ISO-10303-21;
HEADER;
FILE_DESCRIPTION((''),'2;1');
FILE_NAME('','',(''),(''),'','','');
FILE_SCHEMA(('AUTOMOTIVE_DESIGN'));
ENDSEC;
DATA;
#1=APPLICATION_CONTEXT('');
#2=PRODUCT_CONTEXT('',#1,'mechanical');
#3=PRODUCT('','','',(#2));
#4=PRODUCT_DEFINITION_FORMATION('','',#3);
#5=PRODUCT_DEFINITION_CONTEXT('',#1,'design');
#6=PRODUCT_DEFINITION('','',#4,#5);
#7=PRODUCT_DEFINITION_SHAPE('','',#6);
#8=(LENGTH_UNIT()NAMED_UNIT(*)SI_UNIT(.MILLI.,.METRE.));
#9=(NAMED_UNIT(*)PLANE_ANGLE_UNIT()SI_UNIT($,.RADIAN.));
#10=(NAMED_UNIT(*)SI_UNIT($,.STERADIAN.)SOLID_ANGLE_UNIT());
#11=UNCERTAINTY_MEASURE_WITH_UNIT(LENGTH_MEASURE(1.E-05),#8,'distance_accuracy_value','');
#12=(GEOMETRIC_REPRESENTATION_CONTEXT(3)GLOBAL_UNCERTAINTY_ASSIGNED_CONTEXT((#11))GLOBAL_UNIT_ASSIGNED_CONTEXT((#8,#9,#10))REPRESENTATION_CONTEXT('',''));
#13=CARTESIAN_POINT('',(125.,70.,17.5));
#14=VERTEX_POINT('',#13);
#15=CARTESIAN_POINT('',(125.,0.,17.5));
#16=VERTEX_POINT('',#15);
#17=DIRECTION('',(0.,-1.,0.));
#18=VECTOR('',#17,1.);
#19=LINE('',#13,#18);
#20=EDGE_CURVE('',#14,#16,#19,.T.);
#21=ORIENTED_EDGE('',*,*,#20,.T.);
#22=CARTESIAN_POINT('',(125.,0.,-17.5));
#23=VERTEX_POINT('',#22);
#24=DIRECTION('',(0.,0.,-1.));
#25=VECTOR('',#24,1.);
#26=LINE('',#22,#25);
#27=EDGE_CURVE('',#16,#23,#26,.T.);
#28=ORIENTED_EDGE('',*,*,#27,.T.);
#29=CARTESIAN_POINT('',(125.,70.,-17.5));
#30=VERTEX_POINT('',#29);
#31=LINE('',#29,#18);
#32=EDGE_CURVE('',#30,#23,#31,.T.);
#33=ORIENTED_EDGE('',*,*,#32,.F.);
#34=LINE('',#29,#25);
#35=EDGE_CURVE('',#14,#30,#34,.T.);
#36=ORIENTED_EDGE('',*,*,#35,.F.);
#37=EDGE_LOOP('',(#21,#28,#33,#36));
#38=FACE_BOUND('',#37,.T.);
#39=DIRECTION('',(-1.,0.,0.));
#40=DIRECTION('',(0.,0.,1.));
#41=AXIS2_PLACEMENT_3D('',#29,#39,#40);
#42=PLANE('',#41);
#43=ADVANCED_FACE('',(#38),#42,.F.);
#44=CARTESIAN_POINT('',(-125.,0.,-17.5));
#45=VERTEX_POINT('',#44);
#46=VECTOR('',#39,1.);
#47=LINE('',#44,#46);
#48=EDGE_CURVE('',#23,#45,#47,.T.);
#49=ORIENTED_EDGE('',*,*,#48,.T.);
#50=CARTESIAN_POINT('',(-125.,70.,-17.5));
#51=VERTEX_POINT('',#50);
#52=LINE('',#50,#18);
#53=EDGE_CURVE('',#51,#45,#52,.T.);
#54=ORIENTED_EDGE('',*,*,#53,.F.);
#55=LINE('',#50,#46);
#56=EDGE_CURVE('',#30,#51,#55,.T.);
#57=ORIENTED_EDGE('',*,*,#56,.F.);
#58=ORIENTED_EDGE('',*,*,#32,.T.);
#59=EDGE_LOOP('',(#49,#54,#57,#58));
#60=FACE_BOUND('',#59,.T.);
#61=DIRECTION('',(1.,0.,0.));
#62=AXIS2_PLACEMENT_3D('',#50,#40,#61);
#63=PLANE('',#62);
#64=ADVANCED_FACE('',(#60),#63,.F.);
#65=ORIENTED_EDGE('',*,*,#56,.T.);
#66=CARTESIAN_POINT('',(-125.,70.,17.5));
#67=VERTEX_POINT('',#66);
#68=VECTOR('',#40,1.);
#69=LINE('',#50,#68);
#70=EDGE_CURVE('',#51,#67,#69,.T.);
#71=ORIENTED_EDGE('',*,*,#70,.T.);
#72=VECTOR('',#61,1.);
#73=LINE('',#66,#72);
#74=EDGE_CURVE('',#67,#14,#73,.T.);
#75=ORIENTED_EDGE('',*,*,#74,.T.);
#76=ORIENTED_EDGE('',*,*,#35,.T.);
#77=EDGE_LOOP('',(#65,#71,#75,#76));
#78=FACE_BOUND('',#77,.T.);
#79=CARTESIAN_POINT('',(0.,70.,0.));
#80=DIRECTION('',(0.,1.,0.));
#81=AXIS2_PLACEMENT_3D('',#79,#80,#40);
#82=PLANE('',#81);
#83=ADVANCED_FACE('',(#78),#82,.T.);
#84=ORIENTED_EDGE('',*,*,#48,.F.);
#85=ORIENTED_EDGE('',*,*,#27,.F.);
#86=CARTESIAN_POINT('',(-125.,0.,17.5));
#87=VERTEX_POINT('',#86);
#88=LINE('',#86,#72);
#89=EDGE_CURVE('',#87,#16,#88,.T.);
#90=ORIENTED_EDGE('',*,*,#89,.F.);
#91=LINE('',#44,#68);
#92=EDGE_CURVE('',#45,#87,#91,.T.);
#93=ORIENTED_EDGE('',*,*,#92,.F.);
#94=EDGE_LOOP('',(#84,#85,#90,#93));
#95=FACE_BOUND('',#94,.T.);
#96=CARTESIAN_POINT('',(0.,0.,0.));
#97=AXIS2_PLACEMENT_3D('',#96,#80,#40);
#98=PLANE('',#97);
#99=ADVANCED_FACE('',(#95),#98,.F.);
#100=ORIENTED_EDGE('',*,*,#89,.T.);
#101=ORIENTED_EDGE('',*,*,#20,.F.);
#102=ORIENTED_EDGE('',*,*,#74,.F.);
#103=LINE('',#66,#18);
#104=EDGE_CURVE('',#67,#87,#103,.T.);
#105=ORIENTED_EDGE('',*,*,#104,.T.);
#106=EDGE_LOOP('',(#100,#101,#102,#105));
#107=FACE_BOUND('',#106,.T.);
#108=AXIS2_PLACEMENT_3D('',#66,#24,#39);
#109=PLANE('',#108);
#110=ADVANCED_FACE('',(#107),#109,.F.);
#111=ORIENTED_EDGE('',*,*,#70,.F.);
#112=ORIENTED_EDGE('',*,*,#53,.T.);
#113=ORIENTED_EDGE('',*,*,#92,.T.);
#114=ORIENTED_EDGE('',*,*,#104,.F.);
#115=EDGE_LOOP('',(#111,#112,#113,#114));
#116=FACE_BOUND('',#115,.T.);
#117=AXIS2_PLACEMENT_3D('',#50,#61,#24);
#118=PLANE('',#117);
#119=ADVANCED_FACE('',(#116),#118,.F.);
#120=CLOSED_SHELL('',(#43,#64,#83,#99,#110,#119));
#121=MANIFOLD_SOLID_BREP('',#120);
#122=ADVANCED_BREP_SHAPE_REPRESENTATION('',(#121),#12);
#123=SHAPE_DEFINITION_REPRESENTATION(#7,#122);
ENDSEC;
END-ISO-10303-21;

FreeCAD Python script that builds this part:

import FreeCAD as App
import Part
import Sketcher


def add_polygon(sketch, points):
    """Adds a closed chain of lines whose ends are joined by coincident constraints."""
    first, n = sketch.GeometryCount, len(points)
    for a, b in zip(points, points[1:] + points[:1]):
        sketch.addGeometry(Part.LineSegment(App.Vector(*a, 0), App.Vector(*b, 0)), False)
    for i in range(n):
        sketch.addConstraint(Sketcher.Constraint("Coincident", first + i, 2, first + (i + 1) % n, 1))

doc = App.newDocument("Part")
params = doc.addObject("Spreadsheet::Sheet", "Params")
for row, (alias, value) in enumerate([
    ("sketch1_width", "250 mm"),
    ("sketch1_height", "35 mm"),
    ("pad1_length", "70 mm"),
], start=1):
    params.set(f"A{row}", alias)
    params.set(f"B{row}", "=" + value)
    params.setAlias(f"B{row}", alias)

body = doc.addObject("PartDesign::Body", "Body")

# Sketch on XZ plane
sketch1 = body.newObject("Sketcher::SketchObject", "Sketch")
sketch1.AttachmentSupport = (doc.getObject("XZ_Plane"), [""])
sketch1.MapMode = "FlatFace"
add_polygon(sketch1, [(-125, -18), (-125, 18), (125, 18), (125, -18)])  # lines 0-3
sketch1.addConstraint([
    Sketcher.Constraint("Vertical", 0),
    Sketcher.Constraint("Horizontal", 1),
    Sketcher.Constraint("Vertical", 2),
    Sketcher.Constraint("Horizontal", 3),
    Sketcher.Constraint("Symmetric", 0, 2, 2, 2, -1, 1),
    Sketcher.Constraint("DistanceX", 1, 1, 1, 2, 250.0),
    Sketcher.Constraint("DistanceY", 0, 1, 0, 2, 35.0),
])
sketch1.setExpression("Constraints[9]", "Params.sketch1_width")
sketch1.setExpression("Constraints[10]", "Params.sketch1_height")
pad1 = body.newObject("PartDesign::Pad", "Pad")
pad1.Profile = sketch1
pad1.setExpression("Length", "Params.pad1_length")
pad1.Reversed = True

doc.recompute()
